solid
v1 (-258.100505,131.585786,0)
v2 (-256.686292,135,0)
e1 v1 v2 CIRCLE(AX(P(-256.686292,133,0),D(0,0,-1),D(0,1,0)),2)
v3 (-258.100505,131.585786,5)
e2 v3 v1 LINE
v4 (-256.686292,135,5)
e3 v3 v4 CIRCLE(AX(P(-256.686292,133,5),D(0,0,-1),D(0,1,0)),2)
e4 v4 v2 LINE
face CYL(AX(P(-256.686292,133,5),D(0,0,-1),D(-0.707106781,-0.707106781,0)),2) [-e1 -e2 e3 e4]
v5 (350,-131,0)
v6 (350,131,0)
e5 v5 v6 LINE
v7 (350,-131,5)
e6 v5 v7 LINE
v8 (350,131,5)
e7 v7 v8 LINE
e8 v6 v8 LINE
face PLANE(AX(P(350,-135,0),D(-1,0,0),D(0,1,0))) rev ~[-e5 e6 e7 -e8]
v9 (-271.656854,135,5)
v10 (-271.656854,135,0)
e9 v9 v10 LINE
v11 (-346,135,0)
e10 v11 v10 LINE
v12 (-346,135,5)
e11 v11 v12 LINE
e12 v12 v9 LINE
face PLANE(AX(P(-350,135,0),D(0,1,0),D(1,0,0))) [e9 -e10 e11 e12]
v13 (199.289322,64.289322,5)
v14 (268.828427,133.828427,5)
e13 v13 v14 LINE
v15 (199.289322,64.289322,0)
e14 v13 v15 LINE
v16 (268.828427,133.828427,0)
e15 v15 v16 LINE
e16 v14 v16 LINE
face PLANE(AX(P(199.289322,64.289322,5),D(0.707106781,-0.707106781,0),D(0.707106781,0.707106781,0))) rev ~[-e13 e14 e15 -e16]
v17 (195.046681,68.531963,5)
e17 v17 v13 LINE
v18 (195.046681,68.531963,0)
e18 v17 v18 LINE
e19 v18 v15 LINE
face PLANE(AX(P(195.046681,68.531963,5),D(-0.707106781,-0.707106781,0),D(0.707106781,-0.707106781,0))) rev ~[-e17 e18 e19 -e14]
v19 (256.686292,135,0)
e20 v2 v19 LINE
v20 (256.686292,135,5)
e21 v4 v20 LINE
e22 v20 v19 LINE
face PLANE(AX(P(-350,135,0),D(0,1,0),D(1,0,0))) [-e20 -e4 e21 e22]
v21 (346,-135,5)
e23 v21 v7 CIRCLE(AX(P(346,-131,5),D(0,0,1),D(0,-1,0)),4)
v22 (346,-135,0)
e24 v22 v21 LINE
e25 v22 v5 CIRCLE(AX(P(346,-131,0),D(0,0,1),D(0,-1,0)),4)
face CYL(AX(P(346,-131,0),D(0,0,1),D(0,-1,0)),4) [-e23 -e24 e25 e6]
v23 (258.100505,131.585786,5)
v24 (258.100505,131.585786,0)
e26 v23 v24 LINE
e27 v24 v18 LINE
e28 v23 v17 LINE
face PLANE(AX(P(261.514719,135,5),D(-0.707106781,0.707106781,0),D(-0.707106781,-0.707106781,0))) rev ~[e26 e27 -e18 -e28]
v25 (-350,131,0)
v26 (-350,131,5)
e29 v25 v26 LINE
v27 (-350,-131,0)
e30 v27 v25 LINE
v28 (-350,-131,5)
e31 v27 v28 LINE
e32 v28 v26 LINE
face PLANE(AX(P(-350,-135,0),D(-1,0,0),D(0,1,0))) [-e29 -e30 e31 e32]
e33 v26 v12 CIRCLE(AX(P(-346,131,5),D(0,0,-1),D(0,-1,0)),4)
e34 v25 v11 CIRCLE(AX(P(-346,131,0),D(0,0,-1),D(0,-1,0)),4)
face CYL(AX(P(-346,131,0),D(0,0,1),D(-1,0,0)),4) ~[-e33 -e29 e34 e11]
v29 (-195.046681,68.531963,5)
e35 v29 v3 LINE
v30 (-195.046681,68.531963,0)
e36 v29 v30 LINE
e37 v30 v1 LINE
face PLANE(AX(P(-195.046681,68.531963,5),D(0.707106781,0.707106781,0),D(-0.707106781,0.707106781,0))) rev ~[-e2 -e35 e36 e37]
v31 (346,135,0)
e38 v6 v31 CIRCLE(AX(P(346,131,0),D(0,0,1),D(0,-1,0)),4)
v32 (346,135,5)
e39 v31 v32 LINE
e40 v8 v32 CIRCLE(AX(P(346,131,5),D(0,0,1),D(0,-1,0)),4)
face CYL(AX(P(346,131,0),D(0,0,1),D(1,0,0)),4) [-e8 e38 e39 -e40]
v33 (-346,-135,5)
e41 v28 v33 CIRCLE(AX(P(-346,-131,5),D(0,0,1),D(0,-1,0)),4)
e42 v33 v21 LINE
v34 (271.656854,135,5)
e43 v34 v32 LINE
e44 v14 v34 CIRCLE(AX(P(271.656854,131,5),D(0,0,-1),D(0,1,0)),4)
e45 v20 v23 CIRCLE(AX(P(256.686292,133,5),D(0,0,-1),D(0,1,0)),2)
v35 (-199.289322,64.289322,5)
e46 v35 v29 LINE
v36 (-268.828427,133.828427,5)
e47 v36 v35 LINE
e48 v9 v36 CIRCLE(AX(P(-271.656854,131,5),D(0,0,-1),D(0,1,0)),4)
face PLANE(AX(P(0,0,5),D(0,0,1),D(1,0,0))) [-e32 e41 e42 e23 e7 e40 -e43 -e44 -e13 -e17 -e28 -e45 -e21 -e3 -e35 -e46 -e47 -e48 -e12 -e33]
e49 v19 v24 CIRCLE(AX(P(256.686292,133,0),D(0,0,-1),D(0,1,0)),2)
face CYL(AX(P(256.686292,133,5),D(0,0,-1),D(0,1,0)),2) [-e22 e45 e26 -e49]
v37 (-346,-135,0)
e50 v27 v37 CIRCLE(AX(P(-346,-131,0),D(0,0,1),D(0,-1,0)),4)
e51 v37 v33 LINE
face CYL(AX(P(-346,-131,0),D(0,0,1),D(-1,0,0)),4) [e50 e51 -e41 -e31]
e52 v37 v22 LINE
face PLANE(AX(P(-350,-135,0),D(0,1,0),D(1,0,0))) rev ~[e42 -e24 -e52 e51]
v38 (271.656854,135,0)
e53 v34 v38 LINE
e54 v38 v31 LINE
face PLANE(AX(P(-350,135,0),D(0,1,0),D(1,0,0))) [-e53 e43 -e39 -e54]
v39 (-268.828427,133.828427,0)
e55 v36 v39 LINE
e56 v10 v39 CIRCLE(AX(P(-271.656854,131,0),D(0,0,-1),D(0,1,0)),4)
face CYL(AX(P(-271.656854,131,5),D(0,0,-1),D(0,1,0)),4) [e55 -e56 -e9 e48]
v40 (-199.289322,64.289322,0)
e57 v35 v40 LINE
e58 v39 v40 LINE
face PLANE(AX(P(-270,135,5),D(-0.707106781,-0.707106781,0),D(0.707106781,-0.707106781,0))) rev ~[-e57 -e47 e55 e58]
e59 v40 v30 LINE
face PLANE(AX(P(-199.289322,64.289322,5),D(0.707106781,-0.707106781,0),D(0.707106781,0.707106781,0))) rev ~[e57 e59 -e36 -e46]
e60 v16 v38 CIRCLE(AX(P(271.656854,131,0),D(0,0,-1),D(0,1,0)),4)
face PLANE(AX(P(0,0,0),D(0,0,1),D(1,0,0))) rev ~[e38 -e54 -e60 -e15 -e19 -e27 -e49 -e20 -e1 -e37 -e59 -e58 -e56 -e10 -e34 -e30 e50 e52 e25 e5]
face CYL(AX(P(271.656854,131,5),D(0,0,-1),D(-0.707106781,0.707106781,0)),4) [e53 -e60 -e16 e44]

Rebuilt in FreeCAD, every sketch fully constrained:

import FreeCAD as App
import Part
import Sketcher
Q = App.Units.Quantity


def edges_at(feature, points):
    """Names of the edges that pass closest to the given points."""
    edges = feature.Shape.Edges
    near = lambda p: min(range(len(edges)), key=lambda i: edges[i].distToShape(Part.Vertex(*p))[0])
    return sorted({f"Edge{near(p) + 1}" for p in points})

doc = App.newDocument("Part")
body = doc.addObject("PartDesign::Body", "Body")

# Sketch on XY plane
sketch1 = body.newObject("Sketcher::SketchObject", "Sketch")
sketch1.AttachmentSupport = (doc.getObject("XY_Plane"), [""])
sketch1.MapMode = "FlatFace"
sketch1.addGeometry(Part.LineSegment(App.Vector(-350, 135, 0), App.Vector(-350, -135, 0)), False)
sketch1.addGeometry(Part.LineSegment(App.Vector(-350, -135, 0), App.Vector(350, -135, 0)), False)
sketch1.addGeometry(Part.LineSegment(App.Vector(350, -135, 0), App.Vector(350, 135, 0)), False)
sketch1.addGeometry(Part.LineSegment(App.Vector(350, 135, 0), App.Vector(-350, 135, 0)), False)
sketch1.addConstraint(Sketcher.Constraint("Coincident", 0, 2, 1, 1))
sketch1.addConstraint(Sketcher.Constraint("Coincident", 1, 2, 2, 1))
sketch1.addConstraint(Sketcher.Constraint("Coincident", 2, 2, 3, 1))
sketch1.addConstraint(Sketcher.Constraint("Coincident", 3, 2, 0, 1))
sketch1.addConstraint(Sketcher.Constraint("Vertical", 0))
sketch1.addConstraint(Sketcher.Constraint("Horizontal", 1))
sketch1.addConstraint(Sketcher.Constraint("Vertical", 2))
sketch1.addConstraint(Sketcher.Constraint("Horizontal", 3))
sketch1.addConstraint(Sketcher.Constraint("Symmetric", 0, 2, 2, 2, -1, 1))
sketch1.addConstraint(Sketcher.Constraint("DistanceX", 1, 1, 1, 2, Q("700 mm")))
sketch1.addConstraint(Sketcher.Constraint("DistanceY", 0, 2, 0, 1, Q("270 mm")))
pad1 = body.newObject("PartDesign::Pad", "Pad")
pad1.Profile = sketch1
pad1.Length = 5

# Sketch on XY plane
sketch2 = body.newObject("Sketcher::SketchObject", "Sketch001")
sketch2.AttachmentSupport = (doc.getObject("XY_Plane"), [""])
sketch2.MapMode = "FlatFace"
sketch2.AttachmentOffset = App.Placement(App.Vector(0, 0, 5), App.Rotation())
sketch2.addGeometry(Part.LineSegment(App.Vector(-262, 135, 0), App.Vector(-270, 135, 0)), False)
sketch2.addGeometry(Part.LineSegment(App.Vector(-270, 135, 0), App.Vector(-199, 64, 0)), False)
sketch2.addGeometry(Part.LineSegment(App.Vector(-199, 64, 0), App.Vector(-195, 69, 0)), False)
sketch2.addGeometry(Part.LineSegment(App.Vector(-195, 69, 0), App.Vector(-262, 135, 0)), False)
sketch2.addGeometry(Part.LineSegment(App.Vector(270, 135, 0), App.Vector(262, 135, 0)), False)
sketch2.addGeometry(Part.LineSegment(App.Vector(262, 135, 0), App.Vector(195, 69, 0)), False)
sketch2.addGeometry(Part.LineSegment(App.Vector(195, 69, 0), App.Vector(199, 64, 0)), False)
sketch2.addGeometry(Part.LineSegment(App.Vector(199, 64, 0), App.Vector(270, 135, 0)), False)
sketch2.addConstraint(Sketcher.Constraint("Coincident", 0, 2, 1, 1))
sketch2.addConstraint(Sketcher.Constraint("Coincident", 1, 2, 2, 1))
sketch2.addConstraint(Sketcher.Constraint("Coincident", 2, 2, 3, 1))
sketch2.addConstraint(Sketcher.Constraint("Coincident", 3, 2, 0, 1))
sketch2.addConstraint(Sketcher.Constraint("Coincident", 4, 2, 5, 1))
sketch2.addConstraint(Sketcher.Constraint("Coincident", 5, 2, 6, 1))
sketch2.addConstraint(Sketcher.Constraint("Coincident", 6, 2, 7, 1))
sketch2.addConstraint(Sketcher.Constraint("Coincident", 7, 2, 4, 1))
sketch2.addConstraint(Sketcher.Constraint("Horizontal", 0))
sketch2.addConstraint(Sketcher.Constraint("Horizontal", 4))
sketch2.addConstraint(Sketcher.Constraint("Symmetric", 3, 2, 4, 2, -2))
sketch2.addConstraint(Sketcher.Constraint("Symmetric", 2, 2, 5, 2, -2))
sketch2.addConstraint(Sketcher.Constraint("Symmetric", 1, 2, 6, 2, -2))
sketch2.addConstraint(Sketcher.Constraint("Perpendicular", 1, 2))
sketch2.addConstraint(Sketcher.Constraint("Perpendicular", 2, 3))
sketch2.addConstraint(Sketcher.Constraint("Perpendicular", 3, 5))
sketch2.addConstraint(Sketcher.Constraint("Perpendicular", 6, 7))
sketch2.addConstraint(Sketcher.Constraint("Distance", 1, Q("100 mm")))
sketch2.addConstraint(Sketcher.Constraint("Distance", 2, Q("6 mm")))
sketch2.addConstraint(Sketcher.Constraint("DistanceX", 0, 2, -1, 1, Q("270 mm")))
sketch2.addConstraint(Sketcher.Constraint("DistanceY", -1, 1, 0, 2, Q("135 mm")))
pocket1 = body.newObject("PartDesign::Pocket", "Pocket")
pocket1.Profile = sketch2
pocket1.Length = 25
doc.recompute()

fillet = body.newObject("PartDesign::Fillet", "Fillet")
fillet.Base = (pocket1, edges_at(pocket1, [
    (-350, -135, 2.5),
    (350, -135, 2.5),
    (350, 135, 2.5),
    (-350, 135, 2.5),
    (-270, 135, 2.5),
    (270, 135, 2.5),
]))
fillet.Radius = 4
doc.recompute()

fillet2 = body.newObject("PartDesign::Fillet", "Fillet001")
fillet2.Base = (fillet, edges_at(fillet, [(261.515, 135, 2.5), (-261.515, 135, 2.5)]))
fillet2.Radius = 2

doc.recompute()
